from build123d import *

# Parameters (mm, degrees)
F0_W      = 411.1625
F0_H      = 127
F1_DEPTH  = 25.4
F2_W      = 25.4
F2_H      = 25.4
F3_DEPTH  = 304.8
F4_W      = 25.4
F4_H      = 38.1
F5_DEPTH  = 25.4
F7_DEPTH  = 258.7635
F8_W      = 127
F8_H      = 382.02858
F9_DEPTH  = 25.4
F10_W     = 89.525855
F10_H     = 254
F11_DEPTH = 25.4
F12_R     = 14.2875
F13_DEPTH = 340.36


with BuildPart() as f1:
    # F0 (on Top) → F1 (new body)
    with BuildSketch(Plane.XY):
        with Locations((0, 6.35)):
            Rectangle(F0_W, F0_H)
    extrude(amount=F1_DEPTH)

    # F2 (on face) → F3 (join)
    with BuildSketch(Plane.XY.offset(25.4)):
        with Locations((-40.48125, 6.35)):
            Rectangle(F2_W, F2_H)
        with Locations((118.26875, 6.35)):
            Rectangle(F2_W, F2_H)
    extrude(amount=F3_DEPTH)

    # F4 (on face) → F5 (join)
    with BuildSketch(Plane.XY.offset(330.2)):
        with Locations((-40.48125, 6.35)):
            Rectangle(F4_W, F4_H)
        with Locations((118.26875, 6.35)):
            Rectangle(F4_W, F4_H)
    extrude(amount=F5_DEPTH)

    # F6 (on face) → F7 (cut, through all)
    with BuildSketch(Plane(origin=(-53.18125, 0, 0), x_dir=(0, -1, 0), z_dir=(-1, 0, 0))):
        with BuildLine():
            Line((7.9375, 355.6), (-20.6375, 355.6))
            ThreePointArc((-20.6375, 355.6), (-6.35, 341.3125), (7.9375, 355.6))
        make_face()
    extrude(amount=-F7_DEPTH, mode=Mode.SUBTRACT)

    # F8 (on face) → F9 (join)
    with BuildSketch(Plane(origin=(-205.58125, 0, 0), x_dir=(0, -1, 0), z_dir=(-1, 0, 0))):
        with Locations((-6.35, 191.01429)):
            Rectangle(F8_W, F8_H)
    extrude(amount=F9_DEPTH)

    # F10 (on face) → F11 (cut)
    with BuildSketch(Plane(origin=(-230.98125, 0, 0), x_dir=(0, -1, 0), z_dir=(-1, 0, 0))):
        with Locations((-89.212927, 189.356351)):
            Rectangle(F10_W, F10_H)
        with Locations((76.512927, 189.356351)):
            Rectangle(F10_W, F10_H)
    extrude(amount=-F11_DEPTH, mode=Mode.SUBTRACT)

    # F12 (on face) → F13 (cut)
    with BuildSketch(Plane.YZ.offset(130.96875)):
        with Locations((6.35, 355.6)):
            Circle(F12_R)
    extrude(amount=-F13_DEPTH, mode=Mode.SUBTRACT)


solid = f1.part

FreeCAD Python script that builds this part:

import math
import FreeCAD as App
import Part
import Sketcher
from FreeCAD import Vector
Q = App.Units.Quantity

doc = App.newDocument("Part")
params = doc.addObject("Spreadsheet::Sheet", "Params")
for row, (alias, value) in enumerate([
    ("sketch1_height", "5 in"),
    ("sketch1_width", "16.1875 in"),
    ("pad1_length", "1 in"),
    ("sketch2_width", "1 in"),
    ("pad2_length", "12 in"),
    ("sketch3_width", "1 in"),
    ("sketch3_height", "1.5 in"),
    ("pad3_length", "1 in"),
    ("sketch4_radius", "0.5625 in"),
    ("sketch5_width", "5 in"),
    ("pad4_length", "1 in"),
    ("sketch6_height", "10 in"),
    ("pocket2_length", "1 in"),
    ("sketch7_diameter", "1.125 in"),
    ("pocket3_length", "13.4 in"),
], start=1):
    params.set(f"A{row}", alias)
    params.set(f"B{row}", "=" + value)
    params.setAlias(f"B{row}", alias)

body = doc.addObject("PartDesign::Body", "Body")

sketch1 = body.newObject("Sketcher::SketchObject", "Sketch")
sketch1.AttachmentSupport = (doc.getObject("XY_Plane"), [""])
sketch1.MapMode = "FlatFace"
sketch1.addGeometry([
    Part.LineSegment(Vector(-206, 70, 0), Vector(-206, -57, 0)),
    Part.LineSegment(Vector(-206, -57, 0), Vector(206, -57, 0)),
    Part.LineSegment(Vector(206, -57, 0), Vector(206, 70, 0)),
    Part.LineSegment(Vector(206, 70, 0), Vector(-206, 70, 0)),
], False)
sketch1.addConstraint([
    Sketcher.Constraint("Coincident", 0, 2, 1, 1),
    Sketcher.Constraint("Coincident", 1, 2, 2, 1),
    Sketcher.Constraint("Coincident", 2, 2, 3, 1),
    Sketcher.Constraint("Coincident", 3, 2, 0, 1),
    Sketcher.Constraint("Vertical", 0),
    Sketcher.Constraint("Horizontal", 1),
    Sketcher.Constraint("Vertical", 2),
    Sketcher.Constraint("Horizontal", 3),
    Sketcher.Constraint("DistanceY", 0, 2, 0, 1, Q("5 in")),
    Sketcher.Constraint("DistanceX", 1, 1, 1, 2, Q("16.1875 in")),
    Sketcher.Constraint("DistanceY", 0, 2, -1, 1, Q("2.25 in")),
    Sketcher.Constraint("DistanceX", 0, 2, -1, 1, Q("8.09375 in")),
])
sketch1.setExpression("Constraints[8]", "Params.sketch1_height")
sketch1.setExpression("Constraints[9]", "Params.sketch1_width")
pad1 = body.newObject("PartDesign::Pad", "Pad")
pad1.Profile = sketch1
pad1.setExpression("Length", "Params.pad1_length")

sketch2 = body.newObject("Sketcher::SketchObject", "Sketch001")
sketch2.AttachmentSupport = (doc.getObject("XY_Plane"), [""])
sketch2.MapMode = "FlatFace"
sketch2.AttachmentOffset = App.Placement(Vector(0, 0, 1 * 25.4), App.Rotation())
sketch2.addGeometry([
    Part.LineSegment(Vector(-53, 19, 0), Vector(-53, -6, 0)),
    Part.LineSegment(Vector(-53, -6, 0), Vector(-28, -6, 0)),
    Part.LineSegment(Vector(-28, -6, 0), Vector(-28, 19, 0)),
    Part.LineSegment(Vector(-28, 19, 0), Vector(-53, 19, 0)),
    Part.LineSegment(Vector(106, 19, 0), Vector(106, -6, 0)),
    Part.LineSegment(Vector(106, -6, 0), Vector(131, -6, 0)),
    Part.LineSegment(Vector(131, -6, 0), Vector(131, 19, 0)),
    Part.LineSegment(Vector(131, 19, 0), Vector(106, 19, 0)),
], False)
sketch2.addConstraint([
    Sketcher.Constraint("Coincident", 0, 2, 1, 1),
    Sketcher.Constraint("Coincident", 1, 2, 2, 1),
    Sketcher.Constraint("Coincident", 2, 2, 3, 1),
    Sketcher.Constraint("Coincident", 3, 2, 0, 1),
    Sketcher.Constraint("Coincident", 4, 2, 5, 1),
    Sketcher.Constraint("Coincident", 5, 2, 6, 1),
    Sketcher.Constraint("Coincident", 6, 2, 7, 1),
    Sketcher.Constraint("Coincident", 7, 2, 4, 1),
    Sketcher.Constraint("Vertical", 0),
    Sketcher.Constraint("Horizontal", 1),
    Sketcher.Constraint("Vertical", 2),
    Sketcher.Constraint("Horizontal", 3),
    Sketcher.Constraint("Vertical", 4),
    Sketcher.Constraint("Horizontal", 5),
    Sketcher.Constraint("Vertical", 6),
    Sketcher.Constraint("Horizontal", 7),
    Sketcher.Constraint("Horizontal", 1, 2, 4, 2),
    Sketcher.Constraint("Horizontal", 3, 2, 6, 2),
    Sketcher.Constraint("Equal", 3, 5),
    Sketcher.Constraint("Equal", 7, 0),
    Sketcher.Constraint("DistanceX", 1, 1, 1, 2, Q("1 in")),
    Sketcher.Constraint("DistanceY", 0, 2, -1, 1, Q("0.25 in")),
    Sketcher.Constraint("DistanceX", 1, 2, 4, 2, Q("5.25 in")),
    Sketcher.Constraint("DistanceX", 0, 2, -1, 1, Q("2.09375 in")),
])
sketch2.setExpression("Constraints[20]", "Params.sketch2_width")
pad2 = body.newObject("PartDesign::Pad", "Pad001")
pad2.Profile = sketch2
pad2.setExpression("Length", "Params.pad2_length")

sketch3 = body.newObject("Sketcher::SketchObject", "Sketch002")
sketch3.AttachmentSupport = (doc.getObject("XY_Plane"), [""])
sketch3.MapMode = "FlatFace"
sketch3.AttachmentOffset = App.Placement(Vector(0, 0, 13 * 25.4), App.Rotation())
sketch3.addGeometry([
    Part.LineSegment(Vector(-53, 25, 0), Vector(-53, -13, 0)),
    Part.LineSegment(Vector(-53, -13, 0), Vector(-28, -13, 0)),
    Part.LineSegment(Vector(-28, -13, 0), Vector(-28, 25, 0)),
    Part.LineSegment(Vector(-28, 25, 0), Vector(-53, 25, 0)),
    Part.LineSegment(Vector(106, 25, 0), Vector(106, -13, 0)),
    Part.LineSegment(Vector(106, -13, 0), Vector(131, -13, 0)),
    Part.LineSegment(Vector(131, -13, 0), Vector(131, 25, 0)),
    Part.LineSegment(Vector(131, 25, 0), Vector(106, 25, 0)),
], False)
sketch3.addConstraint([
    Sketcher.Constraint("Coincident", 0, 2, 1, 1),
    Sketcher.Constraint("Coincident", 1, 2, 2, 1),
    Sketcher.Constraint("Coincident", 2, 2, 3, 1),
    Sketcher.Constraint("Coincident", 3, 2, 0, 1),
    Sketcher.Constraint("Coincident", 4, 2, 5, 1),
    Sketcher.Constraint("Coincident", 5, 2, 6, 1),
    Sketcher.Constraint("Coincident", 6, 2, 7, 1),
    Sketcher.Constraint("Coincident", 7, 2, 4, 1),
    Sketcher.Constraint("Vertical", 0),
    Sketcher.Constraint("Horizontal", 1),
    Sketcher.Constraint("Vertical", 2),
    Sketcher.Constraint("Horizontal", 3),
    Sketcher.Constraint("Vertical", 4),
    Sketcher.Constraint("Horizontal", 5),
    Sketcher.Constraint("Vertical", 6),
    Sketcher.Constraint("Horizontal", 7),
    Sketcher.Constraint("Horizontal", 1, 2, 4, 2),
    Sketcher.Constraint("Horizontal", 3, 2, 6, 2),
    Sketcher.Constraint("Equal", 3, 5),
    Sketcher.Constraint("DistanceX", 1, 1, 1, 2, Q("1 in")),
    Sketcher.Constraint("DistanceY", 0, 2, 0, 1, Q("1.5 in")),
    Sketcher.Constraint("DistanceY", -1, 1, 2, 2, Q("1 in")),
    Sketcher.Constraint("DistanceX", 1, 2, 4, 2, Q("5.25 in")),
    Sketcher.Constraint("DistanceX", 0, 2, -1, 1, Q("2.09375 in")),
])
sketch3.setExpression("Constraints[19]", "Params.sketch3_width")
sketch3.setExpression("Constraints[20]", "Params.sketch3_height")
pad3 = body.newObject("PartDesign::Pad", "Pad002")
pad3.Profile = sketch3
pad3.setExpression("Length", "Params.pad3_length")

sketch4 = body.newObject("Sketcher::SketchObject", "Sketch003")
sketch4.AttachmentSupport = (doc.getObject("YZ_Plane"), [""])
sketch4.MapMode = "FlatFace"
sketch4.AttachmentOffset = App.Placement(Vector(0, 0, -2.09375 * 25.4), App.Rotation())
sketch4.addGeometry([
    Part.LineSegment(Vector(-8, 356, 0), Vector(21, 356, 0)),
    Part.ArcOfCircle(Part.Circle(Vector(6, 356, 0), Vector(0, 0, 1), 14), math.radians(180), math.radians(360)),
], False)
sketch4.addConstraint([
    Sketcher.Constraint("Coincident", 0, 1, 1, 1),
    Sketcher.Constraint("Coincident", 1, 2, 0, 2),
    Sketcher.Constraint("Horizontal", 0),
    Sketcher.Constraint("Horizontal", 1, 3, 0, 1),
    Sketcher.Constraint("DistanceY", -1, 1, 1, 3, Q("14 in")),
    Sketcher.Constraint("Radius", 1, Q("0.5625 in")),
    Sketcher.Constraint("DistanceX", -1, 1, 1, 3, Q("0.25 in")),
])
sketch4.setExpression("Constraints[5]", "Params.sketch4_radius")
pocket1 = body.newObject("PartDesign::Pocket", "Pocket")
pocket1.Profile = sketch4
pocket1.Type = "ThroughAll"
pocket1.Reversed = True

sketch5 = body.newObject("Sketcher::SketchObject", "Sketch004")
sketch5.AttachmentSupport = (doc.getObject("YZ_Plane"), [""])
sketch5.MapMode = "FlatFace"
sketch5.AttachmentOffset = App.Placement(Vector(0, 0, -8.09375 * 25.4), App.Rotation())
sketch5.addGeometry([
    Part.LineSegment(Vector(70, 382, 0), Vector(70, 0, 0)),
    Part.LineSegment(Vector(70, 0, 0), Vector(-57, 0, 0)),
    Part.LineSegment(Vector(-57, 0, 0), Vector(-57, 382, 0)),
    Part.LineSegment(Vector(-57, 382, 0), Vector(70, 382, 0)),
], False)
sketch5.addConstraint([
    Sketcher.Constraint("Coincident", 0, 2, 1, 1),
    Sketcher.Constraint("Coincident", 1, 2, 2, 1),
    Sketcher.Constraint("Coincident", 2, 2, 3, 1),
    Sketcher.Constraint("Coincident", 3, 2, 0, 1),
    Sketcher.Constraint("Vertical", 0),
    Sketcher.Constraint("Horizontal", 1),
    Sketcher.Constraint("Vertical", 2),
    Sketcher.Constraint("Horizontal", 3),
    Sketcher.Constraint("PointOnObject", 0, 2, -1),
    Sketcher.Constraint("DistanceX", 1, 2, 1, 1, Q("5 in")),
    Sketcher.Constraint("DistanceX", -1, 1, 0, 2, Q("2.75 in")),
    Sketcher.Constraint("DistanceY", 0, 2, 0, 1, 382.02858),
])
sketch5.setExpression("Constraints[9]", "Params.sketch5_width")
pad4 = body.newObject("PartDesign::Pad", "Pad003")
pad4.Profile = sketch5
pad4.setExpression("Length", "Params.pad4_length")
pad4.Reversed = True

sketch6 = body.newObject("Sketcher::SketchObject", "Sketch005")
sketch6.AttachmentSupport = (doc.getObject("YZ_Plane"), [""])
sketch6.MapMode = "FlatFace"
sketch6.AttachmentOffset = App.Placement(Vector(0, 0, -9.09375 * 25.4), App.Rotation())
sketch6.addGeometry([
    Part.LineSegment(Vector(134, 316, 0), Vector(134, 62, 0)),
    Part.LineSegment(Vector(134, 62, 0), Vector(44, 62, 0)),
    Part.LineSegment(Vector(44, 62, 0), Vector(44, 316, 0)),
    Part.LineSegment(Vector(44, 316, 0), Vector(134, 316, 0)),
    Part.LineSegment(Vector(-32, 316, 0), Vector(-32, 62, 0)),
    Part.LineSegment(Vector(-32, 62, 0), Vector(-121, 62, 0)),
    Part.LineSegment(Vector(-121, 62, 0), Vector(-121, 316, 0)),
    Part.LineSegment(Vector(-121, 316, 0), Vector(-32, 316, 0)),
], False)
sketch6.addConstraint([
    Sketcher.Constraint("Coincident", 0, 2, 1, 1),
    Sketcher.Constraint("Coincident", 1, 2, 2, 1),
    Sketcher.Constraint("Coincident", 2, 2, 3, 1),
    Sketcher.Constraint("Coincident", 3, 2, 0, 1),
    Sketcher.Constraint("Coincident", 4, 2, 5, 1),
    Sketcher.Constraint("Coincident", 5, 2, 6, 1),
    Sketcher.Constraint("Coincident", 6, 2, 7, 1),
    Sketcher.Constraint("Coincident", 7, 2, 4, 1),
    Sketcher.Constraint("Vertical", 0),
    Sketcher.Constraint("Horizontal", 1),
    Sketcher.Constraint("Vertical", 2),
    Sketcher.Constraint("Horizontal", 3),
    Sketcher.Constraint("Vertical", 4),
    Sketcher.Constraint("Horizontal", 5),
    Sketcher.Constraint("Vertical", 6),
    Sketcher.Constraint("Horizontal", 7),
    Sketcher.Constraint("Horizontal", 1, 2, 4, 2),
    Sketcher.Constraint("Horizontal", 3, 2, 6, 2),
    Sketcher.Constraint("Equal", 3, 5),
    Sketcher.Constraint("DistanceY", 0, 2, 0, 1, Q("10 in")),
    Sketcher.Constraint("DistanceX", 4, 2, 1, 2, Q("3 in")),
    Sketcher.Constraint("DistanceX", -1, 1, 1, 2, Q("1.75 in")),
    Sketcher.Constraint("DistanceX", 1, 2, 1, 1, 89.525855),
    Sketcher.Constraint("DistanceY", -1, 1, 0, 2, 62.356351),
])
sketch6.setExpression("Constraints[19]", "Params.sketch6_height")
pocket2 = body.newObject("PartDesign::Pocket", "Pocket001")
pocket2.Profile = sketch6
pocket2.setExpression("Length", "Params.pocket2_length")
pocket2.Reversed = True

sketch7 = body.newObject("Sketcher::SketchObject", "Sketch006")
sketch7.AttachmentSupport = (doc.getObject("YZ_Plane"), [""])
sketch7.MapMode = "FlatFace"
sketch7.AttachmentOffset = App.Placement(Vector(0, 0, 5.15625 * 25.4), App.Rotation())
sketch7.addGeometry(Part.Circle(Vector(6, 356, 0), Vector(0, 0, 1), 14), False)
sketch7.addConstraint([
    Sketcher.Constraint("Diameter", 0, Q("1.125 in")),
    Sketcher.Constraint("DistanceY", -1, 1, 0, 3, Q("14 in")),
    Sketcher.Constraint("DistanceX", -1, 1, 0, 3, Q("0.25 in")),
])
sketch7.setExpression("Constraints[0]", "Params.sketch7_diameter")
pocket3 = body.newObject("PartDesign::Pocket", "Pocket002")
pocket3.Profile = sketch7
pocket3.setExpression("Length", "Params.pocket3_length")

doc.recompute()
